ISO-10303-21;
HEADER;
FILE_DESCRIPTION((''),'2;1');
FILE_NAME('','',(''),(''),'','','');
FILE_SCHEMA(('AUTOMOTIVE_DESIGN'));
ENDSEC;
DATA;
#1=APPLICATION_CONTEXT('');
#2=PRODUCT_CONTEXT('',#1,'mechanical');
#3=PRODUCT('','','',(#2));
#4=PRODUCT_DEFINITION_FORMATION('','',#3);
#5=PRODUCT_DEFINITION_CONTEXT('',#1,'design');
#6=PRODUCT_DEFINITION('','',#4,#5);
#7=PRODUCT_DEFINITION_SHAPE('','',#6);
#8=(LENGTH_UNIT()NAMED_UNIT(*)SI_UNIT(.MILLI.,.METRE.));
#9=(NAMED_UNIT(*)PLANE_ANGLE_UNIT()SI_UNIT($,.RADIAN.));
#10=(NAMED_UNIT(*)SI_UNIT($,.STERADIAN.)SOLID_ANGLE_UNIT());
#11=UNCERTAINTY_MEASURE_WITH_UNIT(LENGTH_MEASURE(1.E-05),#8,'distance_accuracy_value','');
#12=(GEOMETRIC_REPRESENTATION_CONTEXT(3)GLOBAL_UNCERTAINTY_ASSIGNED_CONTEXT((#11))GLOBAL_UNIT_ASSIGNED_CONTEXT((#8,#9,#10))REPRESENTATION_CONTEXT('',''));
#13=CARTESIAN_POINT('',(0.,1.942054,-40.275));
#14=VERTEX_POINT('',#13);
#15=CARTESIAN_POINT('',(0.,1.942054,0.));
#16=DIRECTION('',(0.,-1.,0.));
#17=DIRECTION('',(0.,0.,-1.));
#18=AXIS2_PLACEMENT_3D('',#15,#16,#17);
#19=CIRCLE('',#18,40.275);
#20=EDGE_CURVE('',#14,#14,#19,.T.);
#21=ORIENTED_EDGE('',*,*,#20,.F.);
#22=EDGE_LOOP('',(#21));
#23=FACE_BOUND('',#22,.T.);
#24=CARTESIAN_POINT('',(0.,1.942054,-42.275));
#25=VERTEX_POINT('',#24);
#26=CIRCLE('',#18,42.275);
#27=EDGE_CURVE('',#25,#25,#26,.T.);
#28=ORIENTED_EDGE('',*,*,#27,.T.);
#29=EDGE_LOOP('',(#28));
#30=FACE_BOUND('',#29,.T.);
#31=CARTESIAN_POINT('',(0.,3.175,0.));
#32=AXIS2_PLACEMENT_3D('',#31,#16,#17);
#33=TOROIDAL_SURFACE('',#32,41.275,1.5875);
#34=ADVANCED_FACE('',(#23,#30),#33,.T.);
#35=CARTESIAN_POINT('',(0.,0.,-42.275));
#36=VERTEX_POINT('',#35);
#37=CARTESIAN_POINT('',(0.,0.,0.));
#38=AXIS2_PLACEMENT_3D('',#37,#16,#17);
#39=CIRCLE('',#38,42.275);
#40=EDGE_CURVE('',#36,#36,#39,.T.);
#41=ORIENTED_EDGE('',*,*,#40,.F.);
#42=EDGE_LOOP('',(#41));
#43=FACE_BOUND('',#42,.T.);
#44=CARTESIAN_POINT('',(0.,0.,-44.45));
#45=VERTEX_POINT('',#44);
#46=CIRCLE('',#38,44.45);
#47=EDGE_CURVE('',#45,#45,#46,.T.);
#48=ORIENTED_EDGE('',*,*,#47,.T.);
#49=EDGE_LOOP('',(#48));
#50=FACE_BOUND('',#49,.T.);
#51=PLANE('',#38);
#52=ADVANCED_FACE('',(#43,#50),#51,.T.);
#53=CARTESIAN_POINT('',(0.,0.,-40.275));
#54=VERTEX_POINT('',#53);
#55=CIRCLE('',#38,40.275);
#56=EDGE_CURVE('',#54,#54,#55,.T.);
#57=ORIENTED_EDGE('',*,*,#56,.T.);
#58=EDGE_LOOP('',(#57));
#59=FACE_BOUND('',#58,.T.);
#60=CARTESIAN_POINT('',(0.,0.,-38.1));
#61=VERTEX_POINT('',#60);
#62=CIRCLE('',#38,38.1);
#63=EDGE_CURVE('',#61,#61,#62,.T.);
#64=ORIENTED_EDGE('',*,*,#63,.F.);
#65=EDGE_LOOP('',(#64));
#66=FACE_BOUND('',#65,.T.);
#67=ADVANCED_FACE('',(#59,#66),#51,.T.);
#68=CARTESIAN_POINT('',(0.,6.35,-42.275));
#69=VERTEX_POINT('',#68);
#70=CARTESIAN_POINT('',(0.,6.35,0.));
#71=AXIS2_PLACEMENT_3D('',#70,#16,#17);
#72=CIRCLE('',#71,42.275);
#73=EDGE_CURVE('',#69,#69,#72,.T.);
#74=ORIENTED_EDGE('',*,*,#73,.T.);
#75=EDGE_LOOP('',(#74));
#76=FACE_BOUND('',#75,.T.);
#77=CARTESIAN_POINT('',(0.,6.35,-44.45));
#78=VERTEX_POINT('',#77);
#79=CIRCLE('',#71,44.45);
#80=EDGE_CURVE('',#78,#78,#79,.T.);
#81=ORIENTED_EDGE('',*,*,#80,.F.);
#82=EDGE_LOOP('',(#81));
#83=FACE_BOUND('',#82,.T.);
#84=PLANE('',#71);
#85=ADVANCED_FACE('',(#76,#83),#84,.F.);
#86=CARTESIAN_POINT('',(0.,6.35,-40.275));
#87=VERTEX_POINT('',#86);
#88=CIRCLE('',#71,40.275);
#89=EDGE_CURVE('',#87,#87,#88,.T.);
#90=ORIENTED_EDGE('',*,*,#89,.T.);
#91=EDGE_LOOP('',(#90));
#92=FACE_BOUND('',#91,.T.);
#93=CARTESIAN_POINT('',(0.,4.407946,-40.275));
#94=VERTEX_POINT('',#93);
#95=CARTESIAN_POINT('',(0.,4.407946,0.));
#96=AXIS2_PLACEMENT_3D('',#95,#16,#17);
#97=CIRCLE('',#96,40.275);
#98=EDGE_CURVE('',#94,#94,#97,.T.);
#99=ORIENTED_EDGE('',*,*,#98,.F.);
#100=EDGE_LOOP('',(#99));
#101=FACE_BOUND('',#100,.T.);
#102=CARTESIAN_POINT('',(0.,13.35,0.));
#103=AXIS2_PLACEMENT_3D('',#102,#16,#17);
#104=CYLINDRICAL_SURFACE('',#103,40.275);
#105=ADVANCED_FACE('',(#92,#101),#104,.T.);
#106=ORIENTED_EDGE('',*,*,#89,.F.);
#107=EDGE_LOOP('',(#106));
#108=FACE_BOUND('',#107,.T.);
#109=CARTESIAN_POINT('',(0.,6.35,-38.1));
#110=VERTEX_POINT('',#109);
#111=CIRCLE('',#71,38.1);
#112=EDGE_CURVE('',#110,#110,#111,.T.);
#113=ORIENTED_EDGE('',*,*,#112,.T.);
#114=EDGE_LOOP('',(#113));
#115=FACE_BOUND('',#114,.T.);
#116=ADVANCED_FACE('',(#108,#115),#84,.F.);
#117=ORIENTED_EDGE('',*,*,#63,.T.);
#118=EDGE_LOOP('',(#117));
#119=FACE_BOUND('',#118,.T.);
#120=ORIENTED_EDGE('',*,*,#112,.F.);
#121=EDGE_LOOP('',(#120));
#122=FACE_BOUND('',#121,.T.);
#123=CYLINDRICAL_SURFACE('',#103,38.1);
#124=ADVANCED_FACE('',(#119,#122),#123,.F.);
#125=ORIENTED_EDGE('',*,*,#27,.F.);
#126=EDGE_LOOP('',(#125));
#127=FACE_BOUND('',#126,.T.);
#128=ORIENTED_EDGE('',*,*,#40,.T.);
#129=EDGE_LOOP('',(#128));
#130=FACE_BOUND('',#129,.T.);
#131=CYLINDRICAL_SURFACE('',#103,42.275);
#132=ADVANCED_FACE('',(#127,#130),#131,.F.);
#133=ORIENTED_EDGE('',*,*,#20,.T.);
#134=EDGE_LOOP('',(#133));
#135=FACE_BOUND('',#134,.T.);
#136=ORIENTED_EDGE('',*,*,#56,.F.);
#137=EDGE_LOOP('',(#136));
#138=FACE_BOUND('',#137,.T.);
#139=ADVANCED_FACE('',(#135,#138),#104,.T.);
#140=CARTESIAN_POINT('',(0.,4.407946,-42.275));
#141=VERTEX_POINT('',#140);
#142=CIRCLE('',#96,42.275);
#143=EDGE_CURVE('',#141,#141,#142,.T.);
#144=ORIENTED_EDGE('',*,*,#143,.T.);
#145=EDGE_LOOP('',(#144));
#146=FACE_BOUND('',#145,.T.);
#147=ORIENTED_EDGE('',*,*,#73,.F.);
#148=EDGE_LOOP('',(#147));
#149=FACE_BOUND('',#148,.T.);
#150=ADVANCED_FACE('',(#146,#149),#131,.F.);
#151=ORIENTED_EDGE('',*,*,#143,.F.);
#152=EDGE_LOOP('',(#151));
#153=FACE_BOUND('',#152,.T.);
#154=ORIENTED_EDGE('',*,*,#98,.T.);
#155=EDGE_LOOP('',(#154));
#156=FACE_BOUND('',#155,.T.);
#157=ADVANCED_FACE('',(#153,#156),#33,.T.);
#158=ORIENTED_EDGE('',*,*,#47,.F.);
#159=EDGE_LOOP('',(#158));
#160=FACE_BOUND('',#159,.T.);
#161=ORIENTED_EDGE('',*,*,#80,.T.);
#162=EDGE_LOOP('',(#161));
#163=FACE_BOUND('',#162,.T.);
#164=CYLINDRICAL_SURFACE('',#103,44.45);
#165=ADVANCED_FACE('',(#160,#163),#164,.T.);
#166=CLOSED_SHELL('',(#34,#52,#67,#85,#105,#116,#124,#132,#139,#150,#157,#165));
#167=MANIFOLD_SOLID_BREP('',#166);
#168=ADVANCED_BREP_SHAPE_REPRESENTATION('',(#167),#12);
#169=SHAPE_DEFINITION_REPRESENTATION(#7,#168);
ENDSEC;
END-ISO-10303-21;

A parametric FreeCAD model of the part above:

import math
import FreeCAD as App
import Part
import Sketcher
from FreeCAD import Vector
Q = App.Units.Quantity

doc = App.newDocument("Part")
body = doc.addObject("PartDesign::Body", "Body")

# Sketch on XY plane
sketch1 = body.newObject("Sketcher::SketchObject", "Sketch")
sketch1.AttachmentSupport = (doc.getObject("XY_Plane"), [""])
sketch1.MapMode = "FlatFace"
sketch1.addGeometry([
    Part.LineSegment(Vector(42.275, 6.35, 0), Vector(42.275, 4.407946, 0)),  # 0
    Part.ArcOfCircle(Part.Circle(Vector(41.275, 3.175, 0), Vector(0, 0, 1), 1.5875), math.radians(50.955687), math.radians(129.044313)),  # 1
    Part.LineSegment(Vector(40.275, 4.407946, 0), Vector(40.275, 6.35, 0)),  # 2
    Part.LineSegment(Vector(40.275, 6.35, 0), Vector(38.1, 6.35, 0)),  # 3
    Part.LineSegment(Vector(38.1, 6.35, 0), Vector(38.1, 0, 0)),  # 4
    Part.LineSegment(Vector(38.1, 0, 0), Vector(40.275, 0, 0)),  # 5
    Part.LineSegment(Vector(40.275, 0, 0), Vector(40.275, 1.942054, 0)),  # 6
    Part.ArcOfCircle(Part.Circle(Vector(41.275, 3.175, 0), Vector(0, 0, 1), 1.5875), math.radians(-129.044313), math.radians(-50.955687)),  # 7
    Part.LineSegment(Vector(42.275, 1.942054, 0), Vector(42.275, 0, 0)),  # 8
    Part.LineSegment(Vector(42.275, 0, 0), Vector(44.45, 0, 0)),  # 9
    Part.LineSegment(Vector(44.45, 0, 0), Vector(44.45, 6.35, 0)),  # 10
    Part.LineSegment(Vector(44.45, 6.35, 0), Vector(42.275, 6.35, 0)),  # 11
], False)
sketch1.addConstraint([
    Sketcher.Constraint("Coincident", 0, 2, 1, 1),
    Sketcher.Constraint("Coincident", 1, 2, 2, 1),
    Sketcher.Constraint("Coincident", 2, 2, 3, 1),
    Sketcher.Constraint("Coincident", 3, 2, 4, 1),
    Sketcher.Constraint("Coincident", 4, 2, 5, 1),
    Sketcher.Constraint("Coincident", 5, 2, 6, 1),
    Sketcher.Constraint("Coincident", 6, 2, 7, 1),
    Sketcher.Constraint("Coincident", 7, 2, 8, 1),
    Sketcher.Constraint("Coincident", 8, 2, 9, 1),
    Sketcher.Constraint("Coincident", 9, 2, 10, 1),
    Sketcher.Constraint("Coincident", 10, 2, 11, 1),
    Sketcher.Constraint("Coincident", 11, 2, 0, 1),
    Sketcher.Constraint("Vertical", 0),
    Sketcher.Constraint("Vertical", 2),
    Sketcher.Constraint("Horizontal", 3),
    Sketcher.Constraint("Vertical", 4),
    Sketcher.Constraint("Horizontal", 5),
    Sketcher.Constraint("Vertical", 6),
    Sketcher.Constraint("Vertical", 8),
    Sketcher.Constraint("Horizontal", 9),
    Sketcher.Constraint("Vertical", 10),
    Sketcher.Constraint("Horizontal", 11),
    Sketcher.Constraint("Coincident", 7, 3, 1, 3),
    Sketcher.Constraint("Equal", 1, 7),
    Sketcher.Constraint("PointOnObject", 4, 2, -1),
    Sketcher.Constraint("PointOnObject", 8, 2, -1),
    Sketcher.Constraint("Horizontal", 0, 2, 1, 2),
    Sketcher.Constraint("Horizontal", 6, 2, 7, 2),
    Sketcher.Constraint("Horizontal", 3, 2, 10, 2),
    Sketcher.Constraint("Vertical", 2, 2, 5, 2),
    Sketcher.Constraint("Equal", 5, 9),
    Sketcher.Constraint("Equal", 2, 6),
    Sketcher.Constraint("Radius", 1, Q("0.0625 in")),
    Sketcher.Constraint("DistanceY", 4, 2, 4, 1, Q("0.25 in")),
    Sketcher.Constraint("DistanceX", -1, 1, 3, 2, Q("1.5 in")),
    Sketcher.Constraint("DistanceX", -1, 1, 9, 2, Q("1.75 in")),
    Sketcher.Constraint("DistanceX", 3, 2, 3, 1, 2.175),
])
revolution = body.newObject("PartDesign::Revolution", "Revolution")
revolution.Profile = sketch1
revolution.ReferenceAxis = (sketch1, ["V_Axis"])
revolution.Angle = 360

doc.recompute()
